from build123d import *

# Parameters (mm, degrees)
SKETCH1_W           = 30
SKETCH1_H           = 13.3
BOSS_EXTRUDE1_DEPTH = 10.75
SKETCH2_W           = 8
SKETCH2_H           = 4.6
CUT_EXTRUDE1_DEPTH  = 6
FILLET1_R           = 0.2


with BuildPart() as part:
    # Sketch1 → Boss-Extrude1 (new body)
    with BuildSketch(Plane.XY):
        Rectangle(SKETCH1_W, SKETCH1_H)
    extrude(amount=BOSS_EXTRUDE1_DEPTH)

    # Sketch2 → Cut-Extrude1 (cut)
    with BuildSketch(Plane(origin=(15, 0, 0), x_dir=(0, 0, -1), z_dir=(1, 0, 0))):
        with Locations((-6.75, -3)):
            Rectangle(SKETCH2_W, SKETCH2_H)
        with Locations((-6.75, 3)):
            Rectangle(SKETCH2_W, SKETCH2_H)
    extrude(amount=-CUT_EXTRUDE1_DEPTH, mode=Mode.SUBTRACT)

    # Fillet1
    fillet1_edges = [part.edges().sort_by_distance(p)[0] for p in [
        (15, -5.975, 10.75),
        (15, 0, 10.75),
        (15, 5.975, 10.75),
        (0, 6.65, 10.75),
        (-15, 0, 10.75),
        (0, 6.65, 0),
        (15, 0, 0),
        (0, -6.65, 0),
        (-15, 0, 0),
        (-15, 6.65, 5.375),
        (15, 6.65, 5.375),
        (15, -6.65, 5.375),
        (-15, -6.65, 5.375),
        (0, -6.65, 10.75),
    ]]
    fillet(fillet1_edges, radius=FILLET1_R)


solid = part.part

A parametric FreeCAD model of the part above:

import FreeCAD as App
import Part
import Sketcher
from FreeCAD import Vector


def edges_at(feature, points):
    """Names of the edges that pass closest to the given points."""
    edges = feature.Shape.Edges
    near = lambda p: min(range(len(edges)), key=lambda i: edges[i].distToShape(Part.Vertex(*p))[0])
    return sorted({f"Edge{near(p) + 1}" for p in points})

doc = App.newDocument("Part")
body = doc.addObject("PartDesign::Body", "Body")

sketch1 = body.newObject("Sketcher::SketchObject", "Sketch")
sketch1.AttachmentSupport = (doc.getObject("XY_Plane"), [""])
sketch1.MapMode = "FlatFace"
sketch1.addGeometry(Part.LineSegment(Vector(-15, 7, 0), Vector(-15, -7, 0)), False)
sketch1.addGeometry(Part.LineSegment(Vector(-15, -7, 0), Vector(15, -7, 0)), False)
sketch1.addGeometry(Part.LineSegment(Vector(15, -7, 0), Vector(15, 7, 0)), False)
sketch1.addGeometry(Part.LineSegment(Vector(15, 7, 0), Vector(-15, 7, 0)), False)
sketch1.addConstraint(Sketcher.Constraint("Coincident", 0, 2, 1, 1))
sketch1.addConstraint(Sketcher.Constraint("Coincident", 1, 2, 2, 1))
sketch1.addConstraint(Sketcher.Constraint("Coincident", 2, 2, 3, 1))
sketch1.addConstraint(Sketcher.Constraint("Coincident", 3, 2, 0, 1))
sketch1.addConstraint(Sketcher.Constraint("Vertical", 0))
sketch1.addConstraint(Sketcher.Constraint("Horizontal", 1))
sketch1.addConstraint(Sketcher.Constraint("Vertical", 2))
sketch1.addConstraint(Sketcher.Constraint("Horizontal", 3))
sketch1.addConstraint(Sketcher.Constraint("Symmetric", 0, 2, 2, 2, -1, 1))
sketch1.addConstraint(Sketcher.Constraint("DistanceX", 1, 1, 1, 2, 30.0))
sketch1.addConstraint(Sketcher.Constraint("DistanceY", 0, 2, 0, 1, 13.3))
pad1 = body.newObject("PartDesign::Pad", "Pad")
pad1.Profile = sketch1
pad1.Length = 10.75

sketch2 = body.newObject("Sketcher::SketchObject", "Sketch001")
sketch2.AttachmentSupport = (doc.getObject("YZ_Plane"), [""])
sketch2.MapMode = "FlatFace"
sketch2.AttachmentOffset = App.Placement(Vector(0, 0, 15), App.Rotation())
sketch2.addGeometry(Part.LineSegment(Vector(-0.7, 10.8, 0), Vector(-5.3, 10.8, 0)), False)
sketch2.addGeometry(Part.LineSegment(Vector(-5.3, 10.8, 0), Vector(-5.3, 2.8, 0)), False)
sketch2.addGeometry(Part.LineSegment(Vector(-5.3, 2.8, 0), Vector(-0.7, 2.8, 0)), False)
sketch2.addGeometry(Part.LineSegment(Vector(-0.7, 2.8, 0), Vector(-0.7, 10.8, 0)), False)
sketch2.addGeometry(Part.LineSegment(Vector(5.3, 10.8, 0), Vector(0.7, 10.8, 0)), False)
sketch2.addGeometry(Part.LineSegment(Vector(0.7, 10.8, 0), Vector(0.7, 2.8, 0)), False)
sketch2.addGeometry(Part.LineSegment(Vector(0.7, 2.8, 0), Vector(5.3, 2.8, 0)), False)
sketch2.addGeometry(Part.LineSegment(Vector(5.3, 2.8, 0), Vector(5.3, 10.8, 0)), False)
sketch2.addConstraint(Sketcher.Constraint("Coincident", 0, 2, 1, 1))
sketch2.addConstraint(Sketcher.Constraint("Coincident", 1, 2, 2, 1))
sketch2.addConstraint(Sketcher.Constraint("Coincident", 2, 2, 3, 1))
sketch2.addConstraint(Sketcher.Constraint("Coincident", 3, 2, 0, 1))
sketch2.addConstraint(Sketcher.Constraint("Coincident", 4, 2, 5, 1))
sketch2.addConstraint(Sketcher.Constraint("Coincident", 5, 2, 6, 1))
sketch2.addConstraint(Sketcher.Constraint("Coincident", 6, 2, 7, 1))
sketch2.addConstraint(Sketcher.Constraint("Coincident", 7, 2, 4, 1))
sketch2.addConstraint(Sketcher.Constraint("Horizontal", 0))
sketch2.addConstraint(Sketcher.Constraint("Vertical", 1))
sketch2.addConstraint(Sketcher.Constraint("Horizontal", 2))
sketch2.addConstraint(Sketcher.Constraint("Vertical", 3))
sketch2.addConstraint(Sketcher.Constraint("Horizontal", 4))
sketch2.addConstraint(Sketcher.Constraint("Vertical", 5))
sketch2.addConstraint(Sketcher.Constraint("Horizontal", 6))
sketch2.addConstraint(Sketcher.Constraint("Vertical", 7))
sketch2.addConstraint(Sketcher.Constraint("Symmetric", 3, 2, 4, 2, -2))
sketch2.addConstraint(Sketcher.Constraint("Symmetric", 1, 2, 6, 2, -2))
sketch2.addConstraint(Sketcher.Constraint("DistanceY", 1, 2, 1, 1, 8.0))
sketch2.addConstraint(Sketcher.Constraint("DistanceX", 0, 2, 0, 1, 4.6))
sketch2.addConstraint(Sketcher.Constraint("DistanceX", 0, 2, 4, 2, 6.0))
sketch2.addConstraint(Sketcher.Constraint("DistanceY", -1, 1, 0, 2, 10.75))
pocket1 = body.newObject("PartDesign::Pocket", "Pocket")
pocket1.Profile = sketch2
pocket1.Length = 6
doc.recompute()

fillet = body.newObject("PartDesign::Fillet", "Fillet")
fillet.Base = (pocket1, edges_at(pocket1, [
    (15, -5.975, 10.75),
    (15, 0, 10.75),
    (15, 5.975, 10.75),
    (0, 6.65, 10.75),
    (-15, 0, 10.75),
    (0, 6.65, 0),
    (15, 0, 0),
    (0, -6.65, 0),
    (-15, 0, 0),
    (-15, 6.65, 5.375),
    (15, 6.65, 5.375),
    (15, -6.65, 5.375),
    (-15, -6.65, 5.375),
    (0, -6.65, 10.75),
]))
fillet.Radius = 0.2

doc.recompute()
